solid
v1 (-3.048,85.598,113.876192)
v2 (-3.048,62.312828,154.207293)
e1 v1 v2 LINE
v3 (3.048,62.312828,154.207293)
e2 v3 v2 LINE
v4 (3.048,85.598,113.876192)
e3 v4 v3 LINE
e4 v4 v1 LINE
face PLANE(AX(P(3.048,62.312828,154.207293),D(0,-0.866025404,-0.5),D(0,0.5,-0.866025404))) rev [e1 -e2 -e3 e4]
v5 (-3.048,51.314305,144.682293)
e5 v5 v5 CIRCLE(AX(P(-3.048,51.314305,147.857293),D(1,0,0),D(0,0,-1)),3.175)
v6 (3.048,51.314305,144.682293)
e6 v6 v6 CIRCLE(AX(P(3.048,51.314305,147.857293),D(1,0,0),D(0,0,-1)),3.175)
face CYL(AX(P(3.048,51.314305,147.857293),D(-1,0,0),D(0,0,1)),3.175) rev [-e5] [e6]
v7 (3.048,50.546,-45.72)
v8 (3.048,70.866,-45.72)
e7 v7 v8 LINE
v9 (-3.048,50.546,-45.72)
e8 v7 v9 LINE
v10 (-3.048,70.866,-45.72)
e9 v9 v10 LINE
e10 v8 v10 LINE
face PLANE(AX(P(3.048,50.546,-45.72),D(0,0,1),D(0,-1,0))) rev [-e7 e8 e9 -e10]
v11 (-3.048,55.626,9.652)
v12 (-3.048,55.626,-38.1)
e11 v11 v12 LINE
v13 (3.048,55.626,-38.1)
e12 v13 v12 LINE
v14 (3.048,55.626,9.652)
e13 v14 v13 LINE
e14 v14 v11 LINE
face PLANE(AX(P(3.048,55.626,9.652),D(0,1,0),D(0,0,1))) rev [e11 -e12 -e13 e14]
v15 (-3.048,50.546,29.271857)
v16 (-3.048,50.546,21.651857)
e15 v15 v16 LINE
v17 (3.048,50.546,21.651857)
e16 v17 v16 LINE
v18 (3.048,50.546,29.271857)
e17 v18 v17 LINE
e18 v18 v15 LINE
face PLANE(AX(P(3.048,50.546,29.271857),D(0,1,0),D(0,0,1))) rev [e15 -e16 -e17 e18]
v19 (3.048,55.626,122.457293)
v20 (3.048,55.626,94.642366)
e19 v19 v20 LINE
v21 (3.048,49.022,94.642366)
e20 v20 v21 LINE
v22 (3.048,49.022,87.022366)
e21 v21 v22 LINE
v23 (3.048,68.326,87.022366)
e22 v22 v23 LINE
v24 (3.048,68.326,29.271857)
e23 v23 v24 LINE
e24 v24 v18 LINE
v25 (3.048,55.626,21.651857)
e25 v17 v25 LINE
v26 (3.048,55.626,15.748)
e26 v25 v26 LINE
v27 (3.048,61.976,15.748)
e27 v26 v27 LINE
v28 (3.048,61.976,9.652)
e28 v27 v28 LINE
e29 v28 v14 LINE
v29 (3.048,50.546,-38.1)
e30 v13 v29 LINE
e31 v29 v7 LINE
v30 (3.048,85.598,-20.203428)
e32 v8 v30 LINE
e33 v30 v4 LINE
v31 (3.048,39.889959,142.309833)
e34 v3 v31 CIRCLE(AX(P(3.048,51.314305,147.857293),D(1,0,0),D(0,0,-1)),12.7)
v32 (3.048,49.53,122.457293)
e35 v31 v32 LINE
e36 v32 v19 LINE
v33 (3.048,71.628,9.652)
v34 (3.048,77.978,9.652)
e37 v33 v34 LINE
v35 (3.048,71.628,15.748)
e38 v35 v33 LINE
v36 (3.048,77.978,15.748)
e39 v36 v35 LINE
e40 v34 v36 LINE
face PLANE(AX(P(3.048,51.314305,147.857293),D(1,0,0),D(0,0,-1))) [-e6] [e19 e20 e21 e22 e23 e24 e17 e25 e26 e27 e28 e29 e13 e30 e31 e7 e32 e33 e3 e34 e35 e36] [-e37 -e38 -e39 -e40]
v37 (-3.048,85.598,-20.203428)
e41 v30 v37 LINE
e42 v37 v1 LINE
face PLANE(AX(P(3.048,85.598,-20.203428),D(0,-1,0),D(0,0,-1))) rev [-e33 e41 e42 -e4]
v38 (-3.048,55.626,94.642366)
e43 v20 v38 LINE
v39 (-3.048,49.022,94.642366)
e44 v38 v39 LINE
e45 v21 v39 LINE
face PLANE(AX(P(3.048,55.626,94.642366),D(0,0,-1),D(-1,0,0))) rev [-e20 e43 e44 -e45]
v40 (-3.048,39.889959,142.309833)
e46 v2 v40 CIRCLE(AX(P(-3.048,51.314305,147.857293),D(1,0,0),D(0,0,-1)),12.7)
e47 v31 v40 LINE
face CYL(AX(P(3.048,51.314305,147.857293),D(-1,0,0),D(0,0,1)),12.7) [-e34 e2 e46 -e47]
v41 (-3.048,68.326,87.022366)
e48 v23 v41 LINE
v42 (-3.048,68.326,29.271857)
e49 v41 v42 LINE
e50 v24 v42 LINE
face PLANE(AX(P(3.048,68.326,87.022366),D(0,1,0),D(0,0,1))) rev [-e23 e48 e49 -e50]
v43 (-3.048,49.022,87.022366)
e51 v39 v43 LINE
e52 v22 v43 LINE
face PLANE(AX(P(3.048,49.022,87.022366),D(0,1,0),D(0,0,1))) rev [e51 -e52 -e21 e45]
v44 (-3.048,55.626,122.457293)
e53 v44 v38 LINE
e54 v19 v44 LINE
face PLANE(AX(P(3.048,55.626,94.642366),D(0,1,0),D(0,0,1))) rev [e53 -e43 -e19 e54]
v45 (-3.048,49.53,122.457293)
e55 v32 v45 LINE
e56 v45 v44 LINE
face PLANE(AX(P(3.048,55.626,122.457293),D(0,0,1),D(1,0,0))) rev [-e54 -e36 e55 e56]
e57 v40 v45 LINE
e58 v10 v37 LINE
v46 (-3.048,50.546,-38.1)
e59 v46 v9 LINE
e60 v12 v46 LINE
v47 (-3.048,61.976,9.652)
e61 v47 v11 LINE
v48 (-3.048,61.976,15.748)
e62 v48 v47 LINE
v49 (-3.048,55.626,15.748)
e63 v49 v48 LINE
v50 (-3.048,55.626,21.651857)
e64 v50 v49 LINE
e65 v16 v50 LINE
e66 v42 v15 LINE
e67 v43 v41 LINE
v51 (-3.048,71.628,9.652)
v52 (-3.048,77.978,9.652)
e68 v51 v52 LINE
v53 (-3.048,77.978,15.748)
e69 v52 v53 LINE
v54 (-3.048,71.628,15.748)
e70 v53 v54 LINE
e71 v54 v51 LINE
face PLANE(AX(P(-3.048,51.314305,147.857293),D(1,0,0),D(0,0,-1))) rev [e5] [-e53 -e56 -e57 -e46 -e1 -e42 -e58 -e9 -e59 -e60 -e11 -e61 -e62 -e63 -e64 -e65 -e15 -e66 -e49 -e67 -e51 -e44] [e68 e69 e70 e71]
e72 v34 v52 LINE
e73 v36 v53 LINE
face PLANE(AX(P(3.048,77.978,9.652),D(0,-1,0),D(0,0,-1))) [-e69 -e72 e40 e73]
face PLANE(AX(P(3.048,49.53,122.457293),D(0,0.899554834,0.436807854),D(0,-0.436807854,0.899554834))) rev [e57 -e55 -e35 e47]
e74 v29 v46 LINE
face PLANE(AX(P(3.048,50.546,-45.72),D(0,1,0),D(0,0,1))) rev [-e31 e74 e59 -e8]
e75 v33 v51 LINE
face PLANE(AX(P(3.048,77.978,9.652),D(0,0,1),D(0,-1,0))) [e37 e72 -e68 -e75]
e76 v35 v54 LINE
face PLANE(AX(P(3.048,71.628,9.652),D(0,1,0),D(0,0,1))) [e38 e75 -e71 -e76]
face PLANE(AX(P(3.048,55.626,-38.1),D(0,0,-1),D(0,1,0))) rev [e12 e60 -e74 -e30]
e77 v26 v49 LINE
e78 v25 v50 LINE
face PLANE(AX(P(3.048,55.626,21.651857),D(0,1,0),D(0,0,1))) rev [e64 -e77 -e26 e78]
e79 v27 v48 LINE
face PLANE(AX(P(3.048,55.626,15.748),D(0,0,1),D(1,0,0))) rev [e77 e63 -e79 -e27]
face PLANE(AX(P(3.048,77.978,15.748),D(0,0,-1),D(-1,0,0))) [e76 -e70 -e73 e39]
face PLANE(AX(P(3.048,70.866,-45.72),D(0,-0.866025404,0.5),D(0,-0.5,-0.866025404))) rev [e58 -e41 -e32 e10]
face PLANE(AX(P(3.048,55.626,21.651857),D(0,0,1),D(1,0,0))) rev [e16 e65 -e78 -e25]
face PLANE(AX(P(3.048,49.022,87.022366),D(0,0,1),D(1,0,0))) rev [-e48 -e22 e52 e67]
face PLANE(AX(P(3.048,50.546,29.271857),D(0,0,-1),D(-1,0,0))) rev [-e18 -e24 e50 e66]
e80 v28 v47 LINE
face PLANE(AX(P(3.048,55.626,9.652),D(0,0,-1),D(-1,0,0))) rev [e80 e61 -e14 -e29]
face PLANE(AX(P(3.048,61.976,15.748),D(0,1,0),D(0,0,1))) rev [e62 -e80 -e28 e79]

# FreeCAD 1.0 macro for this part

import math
import FreeCAD as App
import Part
import Sketcher
from FreeCAD import Vector
Q = App.Units.Quantity


def add_polygon(sketch, points):
    """Adds a closed chain of lines whose ends are joined by coincident constraints."""
    first, n = sketch.GeometryCount, len(points)
    for a, b in zip(points, points[1:] + points[:1]):
        sketch.addGeometry(Part.LineSegment(App.Vector(*a, 0), App.Vector(*b, 0)), False)
    for i in range(n):
        sketch.addConstraint(Sketcher.Constraint("Coincident", first + i, 2, first + (i + 1) % n, 1))

doc = App.newDocument("Part")
body = doc.addObject("PartDesign::Body", "Body")

# Sketch on YZ plane
sketch1 = body.newObject("Sketcher::SketchObject", "Sketch")
sketch1.AttachmentSupport = (doc.getObject("YZ_Plane"), [""])
sketch1.MapMode = "FlatFace"
sketch1.addGeometry(Part.LineSegment(Vector(55.6, 122.5, 0), Vector(55.6, 94.6, 0)), False)  # 0
sketch1.addGeometry(Part.LineSegment(Vector(55.6, 94.6, 0), Vector(49, 94.6, 0)), False)  # 1
sketch1.addGeometry(Part.LineSegment(Vector(49, 94.6, 0), Vector(49, 87, 0)), False)  # 2
sketch1.addGeometry(Part.LineSegment(Vector(49, 87, 0), Vector(68.3, 87, 0)), False)  # 3
sketch1.addGeometry(Part.LineSegment(Vector(68.3, 87, 0), Vector(68.3, 29.3, 0)), False)  # 4
sketch1.addGeometry(Part.LineSegment(Vector(68.3, 29.3, 0), Vector(50.5, 29.3, 0)), False)  # 5
sketch1.addGeometry(Part.LineSegment(Vector(50.5, 29.3, 0), Vector(50.5, 21.7, 0)), False)  # 6
sketch1.addGeometry(Part.LineSegment(Vector(50.5, 21.7, 0), Vector(55.6, 21.7, 0)), False)  # 7
sketch1.addGeometry(Part.LineSegment(Vector(55.6, 21.7, 0), Vector(55.6, 15.7, 0)), False)  # 8
sketch1.addGeometry(Part.LineSegment(Vector(55.6, 15.7, 0), Vector(62, 15.7, 0)), False)  # 9
sketch1.addGeometry(Part.LineSegment(Vector(62, 15.7, 0), Vector(62, 9.7, 0)), False)  # 10
sketch1.addGeometry(Part.LineSegment(Vector(62, 9.7, 0), Vector(55.6, 9.7, 0)), False)  # 11
sketch1.addGeometry(Part.LineSegment(Vector(55.6, 9.7, 0), Vector(55.6, -38.1, 0)), False)  # 12
sketch1.addGeometry(Part.LineSegment(Vector(55.6, -38.1, 0), Vector(50.5, -38.1, 0)), False)  # 13
sketch1.addGeometry(Part.LineSegment(Vector(50.5, -38.1, 0), Vector(50.5, -45.7, 0)), False)  # 14
sketch1.addGeometry(Part.LineSegment(Vector(50.5, -45.7, 0), Vector(70.9, -45.7, 0)), False)  # 15
sketch1.addGeometry(Part.LineSegment(Vector(70.9, -45.7, 0), Vector(85.6, -20.2, 0)), False)  # 16
sketch1.addGeometry(Part.LineSegment(Vector(85.6, -20.2, 0), Vector(85.6, 113.9, 0)), False)  # 17
sketch1.addGeometry(Part.LineSegment(Vector(85.6, 113.9, 0), Vector(62.3, 154.2, 0)), False)  # 18
sketch1.addGeometry(Part.ArcOfCircle(Part.Circle(Vector(51.3, 147.9, 0), Vector(0, 0, 1), 12.7), math.radians(30), math.radians(206)), False)  # 19
sketch1.addGeometry(Part.LineSegment(Vector(39.9, 142.3, 0), Vector(49.5, 122.5, 0)), False)  # 20
sketch1.addGeometry(Part.LineSegment(Vector(49.5, 122.5, 0), Vector(55.6, 122.5, 0)), False)  # 21
sketch1.addGeometry(Part.Circle(Vector(51.3, 147.9, 0), Vector(0, 0, 1), 3.2), False)  # 22
add_polygon(sketch1, [(71.6, 15.7), (78, 15.7), (78, 9.7), (71.6, 9.7)])  # lines 23-26
sketch1.addConstraint([
    Sketcher.Constraint("Coincident", 0, 2, 1, 1),
    Sketcher.Constraint("Coincident", 1, 2, 2, 1),
    Sketcher.Constraint("Coincident", 2, 2, 3, 1),
    Sketcher.Constraint("Coincident", 3, 2, 4, 1),
    Sketcher.Constraint("Coincident", 4, 2, 5, 1),
    Sketcher.Constraint("Coincident", 5, 2, 6, 1),
    Sketcher.Constraint("Coincident", 6, 2, 7, 1),
    Sketcher.Constraint("Coincident", 7, 2, 8, 1),
    Sketcher.Constraint("Coincident", 8, 2, 9, 1),
    Sketcher.Constraint("Coincident", 9, 2, 10, 1),
    Sketcher.Constraint("Coincident", 10, 2, 11, 1),
    Sketcher.Constraint("Coincident", 11, 2, 12, 1),
    Sketcher.Constraint("Coincident", 12, 2, 13, 1),
    Sketcher.Constraint("Coincident", 13, 2, 14, 1),
    Sketcher.Constraint("Coincident", 14, 2, 15, 1),
    Sketcher.Constraint("Coincident", 15, 2, 16, 1),
    Sketcher.Constraint("Coincident", 16, 2, 17, 1),
    Sketcher.Constraint("Coincident", 17, 2, 18, 1),
    Sketcher.Constraint("Tangent", 18, 2, 19, 1),
    Sketcher.Constraint("Tangent", 19, 2, 20, 1),
    Sketcher.Constraint("Coincident", 20, 2, 21, 1),
    Sketcher.Constraint("Coincident", 21, 2, 0, 1),
    Sketcher.Constraint("Vertical", 0),
    Sketcher.Constraint("Horizontal", 1),
    Sketcher.Constraint("Vertical", 2),
    Sketcher.Constraint("Horizontal", 3),
    Sketcher.Constraint("Vertical", 4),
    Sketcher.Constraint("Horizontal", 5),
    Sketcher.Constraint("Vertical", 6),
    Sketcher.Constraint("Horizontal", 7),
    Sketcher.Constraint("Vertical", 8),
    Sketcher.Constraint("Horizontal", 9),
    Sketcher.Constraint("Vertical", 10),
    Sketcher.Constraint("Horizontal", 11),
    Sketcher.Constraint("Vertical", 12),
    Sketcher.Constraint("Horizontal", 13),
    Sketcher.Constraint("Vertical", 14),
    Sketcher.Constraint("Horizontal", 15),
    Sketcher.Constraint("Vertical", 17),
    Sketcher.Constraint("Horizontal", 21),
    Sketcher.Constraint("Horizontal", 23),
    Sketcher.Constraint("Vertical", 24),
    Sketcher.Constraint("Horizontal", 25),
    Sketcher.Constraint("Vertical", 26),
    Sketcher.Constraint("Coincident", 22, 3, 19, 3),
    Sketcher.Constraint("Horizontal", 9, 2, 23, 2),
    Sketcher.Constraint("Horizontal", 11, 2, 24, 2),
    Sketcher.Constraint("Vertical", 0, 2, 7, 2),
    Sketcher.Constraint("Vertical", 8, 2, 11, 2),
    Sketcher.Constraint("Vertical", 6, 2, 13, 2),
    Sketcher.Constraint("Equal", 11, 23),
    Sketcher.Constraint("Equal", 2, 6),
    Sketcher.Constraint("Equal", 21, 10),
    Sketcher.Constraint("Equal", 6, 14),
    Sketcher.Constraint("Radius", 19, Q("0.5 in")),
    Sketcher.Constraint("Diameter", 22, Q("0.25 in")),
    Sketcher.Constraint("DistanceX", 5, 2, 5, 1, Q("0.7 in")),
    Sketcher.Constraint("DistanceX", 7, 1, 7, 2, Q("0.2 in")),
    Sketcher.Constraint("DistanceX", 15, 1, 15, 2, Q("0.8 in")),
    Sketcher.Constraint("DistanceY", 2, 2, 2, 1, Q("0.3 in")),
    Sketcher.Constraint("Angle", 16, Q("60 deg")),
    Sketcher.Constraint("Angle", 18, Q("120 deg")),
    Sketcher.Constraint("DistanceY", 20, 2, 22, 3, Q("1 in")),
    Sketcher.Constraint("DistanceX", 1, 2, 1, 1, Q("0.26 in")),
    Sketcher.Constraint("DistanceX", 9, 1, 9, 2, Q("0.25 in")),
    Sketcher.Constraint("DistanceX", 21, 1, 21, 2, Q("0.24 in")),
    Sketcher.Constraint("DistanceY", 12, 2, 12, 1, Q("1.88 in")),
    Sketcher.Constraint("DistanceY", 12, 2, -1, 1, Q("1.5 in")),
    Sketcher.Constraint("Distance", 16, Q("1.16 in")),
    Sketcher.Constraint("DistanceX", -1, 1, 0, 2, Q("2.19 in")),
    Sketcher.Constraint("DistanceX", -1, 1, 23, 2, Q("3.07 in")),
    Sketcher.Constraint("DistanceY", 4, 2, 4, 1, Q("57.750509 mm")),
    Sketcher.Constraint("DistanceY", 17, 1, 17, 2, Q("134.079619 mm")),
    Sketcher.Constraint("DistanceY", 17, 2, 22, 3, Q("33.981101 mm")),
    Sketcher.Constraint("DistanceY", 0, 2, 0, 1, Q("27.814927 mm")),
])
pad1 = body.newObject("PartDesign::Pad", "Pad")
pad1.Profile = sketch1
pad1.Length = Q("0.24 in")
pad1.Midplane = True

doc.recompute()
